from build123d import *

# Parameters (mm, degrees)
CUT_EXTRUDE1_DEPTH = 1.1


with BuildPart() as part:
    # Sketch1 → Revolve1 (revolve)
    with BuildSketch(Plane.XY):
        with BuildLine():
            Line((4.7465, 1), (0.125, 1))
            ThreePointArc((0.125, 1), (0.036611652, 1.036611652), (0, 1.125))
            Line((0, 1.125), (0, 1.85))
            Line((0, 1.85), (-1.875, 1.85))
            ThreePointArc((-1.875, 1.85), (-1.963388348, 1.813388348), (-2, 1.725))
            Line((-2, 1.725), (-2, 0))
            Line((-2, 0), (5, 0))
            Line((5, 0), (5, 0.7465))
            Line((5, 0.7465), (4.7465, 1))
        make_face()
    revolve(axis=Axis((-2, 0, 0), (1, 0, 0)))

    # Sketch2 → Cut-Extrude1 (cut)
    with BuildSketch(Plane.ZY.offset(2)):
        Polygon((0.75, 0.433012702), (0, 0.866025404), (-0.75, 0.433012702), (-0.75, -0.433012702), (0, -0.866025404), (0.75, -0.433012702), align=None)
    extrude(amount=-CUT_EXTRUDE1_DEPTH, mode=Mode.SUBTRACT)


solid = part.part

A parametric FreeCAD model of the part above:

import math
import FreeCAD as App
import Part
import Sketcher

V = App.Vector
Q = App.Units.Quantity


def add_polygon(sketch, points):
    """Adds a closed chain of lines whose ends are joined by coincident constraints."""
    first, n = sketch.GeometryCount, len(points)
    for a, b in zip(points, points[1:] + points[:1]):
        sketch.addGeometry(Part.LineSegment(App.Vector(*a, 0), App.Vector(*b, 0)), False)
    for i in range(n):
        sketch.addConstraint(Sketcher.Constraint("Coincident", first + i, 2, first + (i + 1) % n, 1))

doc = App.newDocument("Part")
body = doc.addObject("PartDesign::Body", "Body")

# Sketch on XY plane
sketch1 = body.newObject("Sketcher::SketchObject", "Sketch")
sketch1.AttachmentSupport = (doc.getObject("XY_Plane"), [""])
sketch1.MapMode = "FlatFace"
sketch1.addGeometry([
    Part.LineSegment(V(4.7465, 1, 0), V(0.125, 1, 0)),  # 0
    Part.ArcOfCircle(Part.Circle(V(0.125, 1.125, 0), V(0, 0, 1), 0.125), math.radians(180), math.radians(270)),  # 1
    Part.LineSegment(V(0, 1.125, 0), V(0, 1.85, 0)),  # 2
    Part.LineSegment(V(0, 1.85, 0), V(-1.875, 1.85, 0)),  # 3
    Part.ArcOfCircle(Part.Circle(V(-1.875, 1.725, 0), V(0, 0, 1), 0.125), math.radians(90), math.radians(180)),  # 4
    Part.LineSegment(V(-2, 1.725, 0), V(-2, 0, 0)),  # 5
    Part.LineSegment(V(-2, 0, 0), V(5, 0, 0)),  # 6
    Part.LineSegment(V(5, 0, 0), V(5, 0.7465, 0)),  # 7
    Part.LineSegment(V(5, 0.7465, 0), V(4.7465, 1, 0)),  # 8
], False)
sketch1.addConstraint([
    Sketcher.Constraint("Tangent", 0, 2, 1, 2),
    Sketcher.Constraint("Tangent", 1, 1, 2, 1),
    Sketcher.Constraint("Coincident", 2, 2, 3, 1),
    Sketcher.Constraint("Tangent", 3, 2, 4, 1),
    Sketcher.Constraint("Tangent", 4, 2, 5, 1),
    Sketcher.Constraint("Coincident", 5, 2, 6, 1),
    Sketcher.Constraint("Coincident", 6, 2, 7, 1),
    Sketcher.Constraint("Coincident", 7, 2, 8, 1),
    Sketcher.Constraint("Coincident", 8, 2, 0, 1),
    Sketcher.Constraint("Horizontal", 0),
    Sketcher.Constraint("Vertical", 2),
    Sketcher.Constraint("Horizontal", 3),
    Sketcher.Constraint("Vertical", 5),
    Sketcher.Constraint("Horizontal", 6),
    Sketcher.Constraint("Vertical", 7),
    Sketcher.Constraint("Equal", 1, 4),
    Sketcher.Constraint("PointOnObject", 1, 1, -2),
    Sketcher.Constraint("PointOnObject", 5, 2, -1),
    Sketcher.Constraint("DistanceX", 6, 1, 6, 2, 7.0),
    Sketcher.Constraint("Angle", 8, Q("135 deg")),
    Sketcher.Constraint("DistanceY", -1, 1, 0, 2, 1.0),
    Sketcher.Constraint("DistanceX", 4, 2, -1, 1, 2.0),
    Sketcher.Constraint("Radius", 1, 0.125),
    Sketcher.Constraint("DistanceY", 1, 3, 4, 3, 0.6),
    Sketcher.Constraint("DistanceX", 0, 2, 0, 1, 4.6215),
])
revolution = body.newObject("PartDesign::Revolution", "Revolution")
revolution.Profile = sketch1
revolution.ReferenceAxis = (sketch1, ["H_Axis"])
revolution.Angle = 360

# Sketch on YZ plane
sketch2 = body.newObject("Sketcher::SketchObject", "Sketch001")
sketch2.AttachmentSupport = (doc.getObject("YZ_Plane"), [""])
sketch2.MapMode = "FlatFace"
sketch2.AttachmentOffset = App.Placement(V(0, 0, -2), App.Rotation())
add_polygon(sketch2, [(0.433013, 0.75), (0.866025, 0), (0.433013, -0.75), (-0.433013, -0.75), (-0.866025, 0), (-0.433013, 0.75)])  # lines 0-5
sketch2.addConstraint([
    Sketcher.Constraint("Horizontal", 2),
    Sketcher.Constraint("Horizontal", 5),
    Sketcher.Constraint("Symmetric", 0, 2, 3, 2, -1, 1),
    Sketcher.Constraint("Symmetric", 1, 2, 4, 2, -1, 1),
    Sketcher.Constraint("PointOnObject", 0, 2, -1),
    Sketcher.Constraint("Parallel", 0, 3),
    Sketcher.Constraint("Vertical", 2, 2, 4, 2),
    Sketcher.Constraint("Angle", 0, Q("-60 deg")),
    Sketcher.Constraint("DistanceY", 2, 2, 4, 2, 1.5),
    Sketcher.Constraint("DistanceX", 2, 2, 2, 1, 0.866025),
])
pocket1 = body.newObject("PartDesign::Pocket", "Pocket")
pocket1.Profile = sketch2
pocket1.Length = 1.1
pocket1.Reversed = True

doc.recompute()
